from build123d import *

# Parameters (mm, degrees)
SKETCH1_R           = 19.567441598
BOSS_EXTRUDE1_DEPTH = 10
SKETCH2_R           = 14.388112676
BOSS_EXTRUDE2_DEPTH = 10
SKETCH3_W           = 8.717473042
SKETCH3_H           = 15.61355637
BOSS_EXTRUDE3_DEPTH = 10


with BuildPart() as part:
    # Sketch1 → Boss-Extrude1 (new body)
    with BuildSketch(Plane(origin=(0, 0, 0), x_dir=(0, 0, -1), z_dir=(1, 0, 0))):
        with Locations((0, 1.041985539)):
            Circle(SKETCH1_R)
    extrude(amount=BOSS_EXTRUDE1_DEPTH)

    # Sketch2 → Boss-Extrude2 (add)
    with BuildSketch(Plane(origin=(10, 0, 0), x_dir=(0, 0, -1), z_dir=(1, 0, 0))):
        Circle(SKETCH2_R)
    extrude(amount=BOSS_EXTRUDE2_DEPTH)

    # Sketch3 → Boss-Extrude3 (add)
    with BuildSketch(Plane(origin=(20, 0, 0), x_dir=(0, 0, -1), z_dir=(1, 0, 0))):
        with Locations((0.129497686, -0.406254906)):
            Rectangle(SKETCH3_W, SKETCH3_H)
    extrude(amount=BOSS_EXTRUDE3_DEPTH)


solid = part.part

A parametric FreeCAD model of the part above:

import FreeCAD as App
import Part
import Sketcher


def add_polygon(sketch, points):
    """Adds a closed chain of lines whose ends are joined by coincident constraints."""
    first, n = sketch.GeometryCount, len(points)
    for a, b in zip(points, points[1:] + points[:1]):
        sketch.addGeometry(Part.LineSegment(App.Vector(*a, 0), App.Vector(*b, 0)), False)
    for i in range(n):
        sketch.addConstraint(Sketcher.Constraint("Coincident", first + i, 2, first + (i + 1) % n, 1))

doc = App.newDocument("Part")
body = doc.addObject("PartDesign::Body", "Body")

# Sketch on YZ plane
sketch1 = body.newObject("Sketcher::SketchObject", "Sketch")
sketch1.AttachmentSupport = (doc.getObject("YZ_Plane"), [""])
sketch1.MapMode = "FlatFace"
sketch1.addGeometry(Part.Circle(App.Vector(1, 0, 0), App.Vector(0, 0, 1), 20), False)
sketch1.addConstraint(Sketcher.Constraint("PointOnObject", 0, 3, -1))
sketch1.addConstraint(Sketcher.Constraint("Diameter", 0, 39.134883))
sketch1.addConstraint(Sketcher.Constraint("DistanceX", -1, 1, 0, 3, 1.041986))
pad1 = body.newObject("PartDesign::Pad", "Pad")
pad1.Profile = sketch1
pad1.Length = 10

# Sketch on YZ plane
sketch2 = body.newObject("Sketcher::SketchObject", "Sketch001")
sketch2.AttachmentSupport = (doc.getObject("YZ_Plane"), [""])
sketch2.MapMode = "FlatFace"
sketch2.AttachmentOffset = App.Placement(App.Vector(0, 0, 10), App.Rotation())
sketch2.addGeometry(Part.Circle(App.Vector(0, 0, 0), App.Vector(0, 0, 1), 14), False)
sketch2.addConstraint(Sketcher.Constraint("Coincident", 0, 3, -1, 1))
sketch2.addConstraint(Sketcher.Constraint("Diameter", 0, 28.776225))
pad2 = body.newObject("PartDesign::Pad", "Pad001")
pad2.Profile = sketch2
pad2.Length = 10

# Sketch on YZ plane
sketch3 = body.newObject("Sketcher::SketchObject", "Sketch002")
sketch3.AttachmentSupport = (doc.getObject("YZ_Plane"), [""])
sketch3.MapMode = "FlatFace"
sketch3.AttachmentOffset = App.Placement(App.Vector(0, 0, 20), App.Rotation())
add_polygon(sketch3, [(7, 4), (-8, 4), (-8, -4), (7, -4)])  # lines 0-3
sketch3.addConstraint(Sketcher.Constraint("Horizontal", 0))
sketch3.addConstraint(Sketcher.Constraint("Vertical", 1))
sketch3.addConstraint(Sketcher.Constraint("Horizontal", 2))
sketch3.addConstraint(Sketcher.Constraint("Vertical", 3))
sketch3.addConstraint(Sketcher.Constraint("DistanceX", 0, 2, 0, 1, 15.613556))
sketch3.addConstraint(Sketcher.Constraint("DistanceY", 1, 2, 1, 1, 8.717473))
sketch3.addConstraint(Sketcher.Constraint("DistanceY", -1, 1, 0, 2, 4.229239))
sketch3.addConstraint(Sketcher.Constraint("DistanceX", 0, 2, -1, 1, 8.213033))
pad3 = body.newObject("PartDesign::Pad", "Pad002")
pad3.Profile = sketch3
pad3.Length = 10

doc.recompute()
